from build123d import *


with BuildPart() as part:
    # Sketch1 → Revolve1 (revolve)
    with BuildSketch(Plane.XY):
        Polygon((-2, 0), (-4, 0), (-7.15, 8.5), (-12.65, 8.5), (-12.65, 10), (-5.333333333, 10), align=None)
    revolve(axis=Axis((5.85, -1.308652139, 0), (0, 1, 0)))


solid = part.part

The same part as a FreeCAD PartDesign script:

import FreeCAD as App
import Part
import Sketcher
from FreeCAD import Vector


def add_polygon(sketch, points):
    """Adds a closed chain of lines whose ends are joined by coincident constraints."""
    first, n = sketch.GeometryCount, len(points)
    for a, b in zip(points, points[1:] + points[:1]):
        sketch.addGeometry(Part.LineSegment(App.Vector(*a, 0), App.Vector(*b, 0)), False)
    for i in range(n):
        sketch.addConstraint(Sketcher.Constraint("Coincident", first + i, 2, first + (i + 1) % n, 1))

doc = App.newDocument("Part")
body = doc.addObject("PartDesign::Body", "Body")

sketch1 = body.newObject("Sketcher::SketchObject", "Sketch")
sketch1.AttachmentSupport = (doc.getObject("XY_Plane"), [""])
sketch1.MapMode = "FlatFace"
add_polygon(sketch1, [(-4, 0), (-2, 0), (-5.3, 10), (-12.7, 10), (-12.7, 8.5), (-7.2, 8.5)])
sketch1.addGeometry(Part.LineSegment(Vector(5.8, 0, 0), Vector(5.8, 10, 0)), True)
sketch1.addConstraint([
    Sketcher.Constraint("Horizontal", 0),
    Sketcher.Constraint("Horizontal", 2),
    Sketcher.Constraint("Vertical", 3),
    Sketcher.Constraint("Horizontal", 4),
    Sketcher.Constraint("Vertical", 6),
    Sketcher.Constraint("PointOnObject", 0, 2, -1),
    Sketcher.Constraint("PointOnObject", 6, 1, -1),
    Sketcher.Constraint("Horizontal", 2, 2, 6, 2),
    Sketcher.Constraint("DistanceX", 0, 1, 0, 2, 2.0),
    Sketcher.Constraint("DistanceY", 6, 1, 6, 2, 10.0),
    Sketcher.Constraint("DistanceX", 4, 1, 4, 2, 5.5),
    Sketcher.Constraint("DistanceY", 3, 2, 3, 1, 1.5),
    Sketcher.Constraint("DistanceX", 0, 2, -1, 1, 2.0),
    Sketcher.Constraint("DistanceX", 4, 2, 6, 1, 13.0),
    Sketcher.Constraint("DistanceX", 2, 2, -1, 1, 12.65),
    Sketcher.Constraint("DistanceX", 2, 2, 2, 1, 7.316667),
])
revolution = body.newObject("PartDesign::Revolution", "Revolution")
revolution.Profile = sketch1
revolution.ReferenceAxis = (sketch1, ["Axis0"])
revolution.Angle = 360

doc.recompute()
